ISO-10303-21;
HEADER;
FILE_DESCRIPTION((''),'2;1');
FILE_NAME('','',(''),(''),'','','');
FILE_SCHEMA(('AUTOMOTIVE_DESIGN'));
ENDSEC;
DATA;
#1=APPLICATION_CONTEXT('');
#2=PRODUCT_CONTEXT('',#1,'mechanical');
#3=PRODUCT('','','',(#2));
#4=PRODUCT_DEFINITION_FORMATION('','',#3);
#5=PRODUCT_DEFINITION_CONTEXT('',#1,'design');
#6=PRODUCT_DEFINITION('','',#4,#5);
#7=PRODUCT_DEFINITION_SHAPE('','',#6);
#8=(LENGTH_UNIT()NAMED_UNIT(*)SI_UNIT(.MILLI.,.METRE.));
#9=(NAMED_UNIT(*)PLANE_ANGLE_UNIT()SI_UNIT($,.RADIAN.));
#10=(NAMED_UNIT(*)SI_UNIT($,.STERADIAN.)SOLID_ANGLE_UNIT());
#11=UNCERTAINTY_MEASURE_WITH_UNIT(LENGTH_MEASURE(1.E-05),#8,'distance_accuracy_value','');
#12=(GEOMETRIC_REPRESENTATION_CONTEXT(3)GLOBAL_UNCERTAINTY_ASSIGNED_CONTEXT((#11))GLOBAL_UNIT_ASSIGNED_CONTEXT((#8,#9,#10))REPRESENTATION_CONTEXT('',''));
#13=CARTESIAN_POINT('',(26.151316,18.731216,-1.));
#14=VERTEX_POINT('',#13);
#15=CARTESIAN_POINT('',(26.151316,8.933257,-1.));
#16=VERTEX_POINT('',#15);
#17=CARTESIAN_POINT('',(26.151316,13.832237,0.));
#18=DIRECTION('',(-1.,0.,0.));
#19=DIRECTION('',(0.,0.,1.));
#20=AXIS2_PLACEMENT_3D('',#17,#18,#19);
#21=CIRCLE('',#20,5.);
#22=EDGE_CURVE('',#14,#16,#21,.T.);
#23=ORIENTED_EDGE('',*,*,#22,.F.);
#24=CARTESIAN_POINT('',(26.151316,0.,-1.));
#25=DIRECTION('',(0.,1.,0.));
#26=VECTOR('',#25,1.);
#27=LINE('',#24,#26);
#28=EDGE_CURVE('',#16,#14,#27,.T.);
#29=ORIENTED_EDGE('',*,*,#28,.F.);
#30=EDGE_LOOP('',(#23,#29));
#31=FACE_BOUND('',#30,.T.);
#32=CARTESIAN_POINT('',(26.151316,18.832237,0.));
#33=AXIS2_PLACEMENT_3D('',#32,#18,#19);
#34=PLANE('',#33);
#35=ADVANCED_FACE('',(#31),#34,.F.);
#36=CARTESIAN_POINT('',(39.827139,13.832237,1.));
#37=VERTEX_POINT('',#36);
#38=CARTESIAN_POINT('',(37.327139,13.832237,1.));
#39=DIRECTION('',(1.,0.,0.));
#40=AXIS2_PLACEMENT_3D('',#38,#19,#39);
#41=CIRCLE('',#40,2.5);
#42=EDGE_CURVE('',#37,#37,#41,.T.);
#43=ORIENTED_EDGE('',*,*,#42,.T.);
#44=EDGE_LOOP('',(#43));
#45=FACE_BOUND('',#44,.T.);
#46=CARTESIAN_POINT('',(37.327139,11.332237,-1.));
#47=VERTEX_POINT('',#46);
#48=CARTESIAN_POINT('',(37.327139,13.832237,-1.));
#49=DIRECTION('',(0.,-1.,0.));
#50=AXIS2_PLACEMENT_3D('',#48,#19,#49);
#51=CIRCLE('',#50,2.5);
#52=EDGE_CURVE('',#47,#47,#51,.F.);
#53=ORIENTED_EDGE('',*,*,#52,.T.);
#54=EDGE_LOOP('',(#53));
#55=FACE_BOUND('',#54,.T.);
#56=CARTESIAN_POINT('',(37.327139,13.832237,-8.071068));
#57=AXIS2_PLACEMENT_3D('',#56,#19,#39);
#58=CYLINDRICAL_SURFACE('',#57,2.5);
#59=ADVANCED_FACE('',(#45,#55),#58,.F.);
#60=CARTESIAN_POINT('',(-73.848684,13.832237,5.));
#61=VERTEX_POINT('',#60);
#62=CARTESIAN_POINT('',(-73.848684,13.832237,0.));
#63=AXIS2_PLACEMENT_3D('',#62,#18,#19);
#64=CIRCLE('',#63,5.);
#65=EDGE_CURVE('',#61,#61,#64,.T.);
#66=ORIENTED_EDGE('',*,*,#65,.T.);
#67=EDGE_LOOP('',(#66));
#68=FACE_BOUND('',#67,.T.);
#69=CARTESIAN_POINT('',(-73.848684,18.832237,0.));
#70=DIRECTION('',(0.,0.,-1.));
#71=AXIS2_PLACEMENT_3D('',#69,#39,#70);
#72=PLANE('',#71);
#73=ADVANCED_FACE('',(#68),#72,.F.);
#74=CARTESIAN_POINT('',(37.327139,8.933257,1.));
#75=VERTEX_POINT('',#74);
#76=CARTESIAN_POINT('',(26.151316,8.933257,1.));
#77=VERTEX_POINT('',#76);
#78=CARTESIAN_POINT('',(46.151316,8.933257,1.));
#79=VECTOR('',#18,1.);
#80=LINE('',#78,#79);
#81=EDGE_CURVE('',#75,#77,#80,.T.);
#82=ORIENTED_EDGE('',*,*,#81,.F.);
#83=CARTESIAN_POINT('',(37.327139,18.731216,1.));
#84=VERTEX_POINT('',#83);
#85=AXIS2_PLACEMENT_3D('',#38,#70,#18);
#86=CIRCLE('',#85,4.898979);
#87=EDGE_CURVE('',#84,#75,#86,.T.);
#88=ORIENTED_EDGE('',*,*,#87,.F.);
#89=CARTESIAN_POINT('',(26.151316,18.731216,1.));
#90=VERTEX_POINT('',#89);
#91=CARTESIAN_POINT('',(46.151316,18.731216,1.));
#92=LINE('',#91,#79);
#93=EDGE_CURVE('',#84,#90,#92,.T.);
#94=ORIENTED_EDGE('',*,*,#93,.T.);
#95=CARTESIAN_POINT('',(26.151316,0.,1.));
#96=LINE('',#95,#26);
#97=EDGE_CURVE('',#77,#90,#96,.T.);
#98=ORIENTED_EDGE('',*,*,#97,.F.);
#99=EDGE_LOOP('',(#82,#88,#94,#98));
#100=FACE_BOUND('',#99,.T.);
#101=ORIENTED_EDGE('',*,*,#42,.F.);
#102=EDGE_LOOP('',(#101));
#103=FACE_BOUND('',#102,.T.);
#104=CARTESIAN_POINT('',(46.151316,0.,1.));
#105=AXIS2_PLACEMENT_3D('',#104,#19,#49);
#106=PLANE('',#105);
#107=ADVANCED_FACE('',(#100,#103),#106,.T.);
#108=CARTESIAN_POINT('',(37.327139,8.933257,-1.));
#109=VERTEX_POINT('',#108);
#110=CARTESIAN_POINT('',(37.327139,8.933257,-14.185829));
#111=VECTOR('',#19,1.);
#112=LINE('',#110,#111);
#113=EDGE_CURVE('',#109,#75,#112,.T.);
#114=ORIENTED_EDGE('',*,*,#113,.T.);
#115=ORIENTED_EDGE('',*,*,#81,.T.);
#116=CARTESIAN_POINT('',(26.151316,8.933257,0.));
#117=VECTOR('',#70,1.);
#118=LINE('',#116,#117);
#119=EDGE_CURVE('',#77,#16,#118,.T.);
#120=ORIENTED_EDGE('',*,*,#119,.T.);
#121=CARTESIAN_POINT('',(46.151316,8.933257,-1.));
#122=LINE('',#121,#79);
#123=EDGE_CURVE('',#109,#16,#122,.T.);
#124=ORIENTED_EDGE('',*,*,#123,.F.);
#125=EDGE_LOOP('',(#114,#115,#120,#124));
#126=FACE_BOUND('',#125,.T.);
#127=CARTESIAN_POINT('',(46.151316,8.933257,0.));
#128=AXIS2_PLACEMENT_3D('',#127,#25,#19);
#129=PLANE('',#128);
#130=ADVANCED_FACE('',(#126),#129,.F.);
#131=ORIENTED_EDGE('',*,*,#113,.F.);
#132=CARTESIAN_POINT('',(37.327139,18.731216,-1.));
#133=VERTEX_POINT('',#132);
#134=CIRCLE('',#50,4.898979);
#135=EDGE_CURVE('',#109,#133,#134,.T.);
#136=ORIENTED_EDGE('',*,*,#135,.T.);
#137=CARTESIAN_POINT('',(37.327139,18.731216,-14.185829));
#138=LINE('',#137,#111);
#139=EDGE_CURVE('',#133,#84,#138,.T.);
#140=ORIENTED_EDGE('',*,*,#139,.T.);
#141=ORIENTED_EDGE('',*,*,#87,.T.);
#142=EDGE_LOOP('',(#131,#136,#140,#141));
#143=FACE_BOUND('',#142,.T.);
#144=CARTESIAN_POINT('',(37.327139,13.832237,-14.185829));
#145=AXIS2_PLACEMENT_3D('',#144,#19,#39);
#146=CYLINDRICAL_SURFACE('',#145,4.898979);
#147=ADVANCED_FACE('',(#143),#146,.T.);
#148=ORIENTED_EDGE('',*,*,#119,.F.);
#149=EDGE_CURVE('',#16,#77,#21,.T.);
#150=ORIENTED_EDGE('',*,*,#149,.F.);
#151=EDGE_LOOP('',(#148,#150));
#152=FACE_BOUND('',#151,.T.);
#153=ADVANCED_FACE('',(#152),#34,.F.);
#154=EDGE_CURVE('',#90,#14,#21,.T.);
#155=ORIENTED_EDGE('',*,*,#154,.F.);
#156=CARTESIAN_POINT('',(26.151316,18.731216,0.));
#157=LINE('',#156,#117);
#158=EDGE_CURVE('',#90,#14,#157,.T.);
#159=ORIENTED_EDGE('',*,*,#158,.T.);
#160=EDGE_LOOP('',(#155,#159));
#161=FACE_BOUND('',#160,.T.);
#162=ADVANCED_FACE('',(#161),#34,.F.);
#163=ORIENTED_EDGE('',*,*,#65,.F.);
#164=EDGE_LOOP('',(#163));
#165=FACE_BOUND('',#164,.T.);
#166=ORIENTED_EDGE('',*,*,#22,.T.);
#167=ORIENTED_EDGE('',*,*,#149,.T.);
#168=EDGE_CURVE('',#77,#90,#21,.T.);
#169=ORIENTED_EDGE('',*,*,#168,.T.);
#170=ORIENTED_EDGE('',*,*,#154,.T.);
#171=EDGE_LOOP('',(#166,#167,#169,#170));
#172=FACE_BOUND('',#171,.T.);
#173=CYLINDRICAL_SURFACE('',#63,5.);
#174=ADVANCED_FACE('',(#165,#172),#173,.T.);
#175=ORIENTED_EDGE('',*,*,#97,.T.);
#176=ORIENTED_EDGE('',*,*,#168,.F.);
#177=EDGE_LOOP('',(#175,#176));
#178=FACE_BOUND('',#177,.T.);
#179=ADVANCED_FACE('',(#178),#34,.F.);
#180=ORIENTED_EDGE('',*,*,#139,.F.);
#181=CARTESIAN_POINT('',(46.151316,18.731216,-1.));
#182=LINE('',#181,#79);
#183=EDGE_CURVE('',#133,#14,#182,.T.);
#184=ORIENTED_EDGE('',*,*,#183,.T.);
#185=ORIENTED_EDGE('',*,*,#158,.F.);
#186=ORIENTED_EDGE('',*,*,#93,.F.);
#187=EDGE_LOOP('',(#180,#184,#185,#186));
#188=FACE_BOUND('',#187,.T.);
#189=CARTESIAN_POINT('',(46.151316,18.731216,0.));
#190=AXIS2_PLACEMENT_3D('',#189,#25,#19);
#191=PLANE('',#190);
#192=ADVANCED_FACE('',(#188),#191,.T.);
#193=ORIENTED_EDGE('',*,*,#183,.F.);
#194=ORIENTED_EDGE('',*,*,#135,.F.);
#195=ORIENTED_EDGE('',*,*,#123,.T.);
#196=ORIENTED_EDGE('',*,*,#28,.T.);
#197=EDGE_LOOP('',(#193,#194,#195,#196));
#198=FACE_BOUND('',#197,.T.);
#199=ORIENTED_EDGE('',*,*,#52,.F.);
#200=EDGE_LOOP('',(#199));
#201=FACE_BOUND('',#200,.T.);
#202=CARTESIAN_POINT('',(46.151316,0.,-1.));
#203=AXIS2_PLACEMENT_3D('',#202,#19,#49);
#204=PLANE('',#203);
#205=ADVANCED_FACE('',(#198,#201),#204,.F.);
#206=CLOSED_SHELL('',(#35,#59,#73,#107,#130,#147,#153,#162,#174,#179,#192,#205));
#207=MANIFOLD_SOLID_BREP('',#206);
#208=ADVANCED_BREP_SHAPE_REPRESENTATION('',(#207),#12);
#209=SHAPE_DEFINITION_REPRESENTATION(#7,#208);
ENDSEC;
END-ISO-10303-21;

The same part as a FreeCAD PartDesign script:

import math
import FreeCAD as App
import Part
import Sketcher
from FreeCAD import Vector

doc = App.newDocument("Part")
body = doc.addObject("PartDesign::Body", "Body")

sketch1 = body.newObject("Sketcher::SketchObject", "Sketch")
sketch1.AttachmentSupport = (doc.getObject("XY_Plane"), [""])
sketch1.MapMode = "FlatFace"
sketch1.addGeometry([
    Part.LineSegment(Vector(-74, 19, 0), Vector(-74, 14, 0)),
    Part.LineSegment(Vector(-74, 14, 0), Vector(26, 14, 0)),
    Part.LineSegment(Vector(26, 14, 0), Vector(26, 19, 0)),
    Part.LineSegment(Vector(26, 19, 0), Vector(-74, 19, 0)),
], False)
sketch1.addGeometry(Part.LineSegment(Vector(-74, 14, 0), Vector(26, 14, 0)), True)
sketch1.addConstraint([
    Sketcher.Constraint("Coincident", 0, 2, 1, 1),
    Sketcher.Constraint("Coincident", 1, 2, 2, 1),
    Sketcher.Constraint("Coincident", 2, 2, 3, 1),
    Sketcher.Constraint("Coincident", 3, 2, 0, 1),
    Sketcher.Constraint("Vertical", 0),
    Sketcher.Constraint("Horizontal", 1),
    Sketcher.Constraint("Vertical", 2),
    Sketcher.Constraint("Horizontal", 3),
    Sketcher.Constraint("Horizontal", 4),
    Sketcher.Constraint("Coincident", 4, 1, 0, 2),
    Sketcher.Constraint("Vertical", 2, 2, 4, 2),
    Sketcher.Constraint("DistanceX", 1, 1, 1, 2, 100.0),
    Sketcher.Constraint("DistanceY", 0, 2, 0, 1, 5.0),
    Sketcher.Constraint("DistanceX", 0, 2, -1, 1, 73.848684),
    Sketcher.Constraint("DistanceY", -1, 1, 0, 2, 13.832237),
])
revolution = body.newObject("PartDesign::Revolution", "Revolution")
revolution.Profile = sketch1
revolution.ReferenceAxis = (sketch1, ["Axis0"])
revolution.Angle = 360

sketch2 = body.newObject("Sketcher::SketchObject", "Sketch001")
sketch2.AttachmentSupport = (doc.getObject("YZ_Plane"), [""])
sketch2.MapMode = "FlatFace"
sketch2.AttachmentOffset = App.Placement(Vector(0, 0, 26.151316), App.Rotation())
sketch2.addGeometry([
    Part.LineSegment(Vector(18.7, 1, 0), Vector(8.9, 1, 0)),
    Part.LineSegment(Vector(8.9, 1, 0), Vector(8.9, -1, 0)),
    Part.LineSegment(Vector(8.9, -1, 0), Vector(18.7, -1, 0)),
    Part.LineSegment(Vector(18.7, -1, 0), Vector(18.7, 1, 0)),
], False)
sketch2.addConstraint([
    Sketcher.Constraint("Coincident", 0, 2, 1, 1),
    Sketcher.Constraint("Coincident", 1, 2, 2, 1),
    Sketcher.Constraint("Coincident", 2, 2, 3, 1),
    Sketcher.Constraint("Coincident", 3, 2, 0, 1),
    Sketcher.Constraint("Horizontal", 0),
    Sketcher.Constraint("Vertical", 1),
    Sketcher.Constraint("Horizontal", 2),
    Sketcher.Constraint("Vertical", 3),
    Sketcher.Constraint("DistanceY", 1, 2, 1, 1, 2.0),
    Sketcher.Constraint("DistanceY", -1, 1, 0, 2, 1.0),
    Sketcher.Constraint("DistanceX", 0, 2, 0, 1, 9.797959),
    Sketcher.Constraint("DistanceX", -1, 1, 0, 2, 8.933257),
])
pad1 = body.newObject("PartDesign::Pad", "Pad")
pad1.Profile = sketch2
pad1.Length = 20

sketch3 = body.newObject("Sketcher::SketchObject", "Sketch002")
sketch3.AttachmentSupport = (doc.getObject("XY_Plane"), [""])
sketch3.MapMode = "FlatFace"
sketch3.AttachmentOffset = App.Placement(Vector(0, 0, 1), App.Rotation())
sketch3.addGeometry([
    Part.LineSegment(Vector(46.2, 18.7, 0), Vector(37.3, 18.7, 0)),
    Part.ArcOfCircle(Part.Circle(Vector(37.3, 13.8, 0), Vector(0, 0, 1), 4.9), math.radians(-90), math.radians(90)),
    Part.LineSegment(Vector(37.3, 8.9, 0), Vector(46.2, 8.9, 0)),
    Part.LineSegment(Vector(46.2, 8.9, 0), Vector(46.2, 18.7, 0)),
], False)
sketch3.addConstraint([
    Sketcher.Constraint("Tangent", 0, 2, 1, 2),
    Sketcher.Constraint("Tangent", 1, 1, 2, 1),
    Sketcher.Constraint("Coincident", 2, 2, 3, 1),
    Sketcher.Constraint("Coincident", 3, 2, 0, 1),
    Sketcher.Constraint("Horizontal", 0),
    Sketcher.Constraint("Horizontal", 2),
    Sketcher.Constraint("Vertical", 3),
    Sketcher.Constraint("Radius", 1, 4.898979),
    Sketcher.Constraint("DistanceX", 0, 2, 0, 1, 8.824177),
    Sketcher.Constraint("DistanceX", -1, 1, 1, 3, 37.327139),
    Sketcher.Constraint("DistanceY", -1, 1, 1, 3, 13.832237),
])
pocket1 = body.newObject("PartDesign::Pocket", "Pocket")
pocket1.Profile = sketch3
pocket1.Length = 2

sketch4 = body.newObject("Sketcher::SketchObject", "Sketch003")
sketch4.AttachmentSupport = (doc.getObject("XY_Plane"), [""])
sketch4.MapMode = "FlatFace"
sketch4.AttachmentOffset = App.Placement(Vector(0, 0, 1), App.Rotation())
sketch4.addGeometry(Part.Circle(Vector(37.3, 13.8, 0), Vector(0, 0, 1), 2.5), False)
sketch4.addConstraint([
    Sketcher.Constraint("Diameter", 0, 5.0),
    Sketcher.Constraint("DistanceX", -1, 1, 0, 3, 37.327139),
    Sketcher.Constraint("DistanceY", -1, 1, 0, 3, 13.832237),
])
pocket2 = body.newObject("PartDesign::Pocket", "Pocket001")
pocket2.Profile = sketch4
pocket2.Length = 2

doc.recompute()
